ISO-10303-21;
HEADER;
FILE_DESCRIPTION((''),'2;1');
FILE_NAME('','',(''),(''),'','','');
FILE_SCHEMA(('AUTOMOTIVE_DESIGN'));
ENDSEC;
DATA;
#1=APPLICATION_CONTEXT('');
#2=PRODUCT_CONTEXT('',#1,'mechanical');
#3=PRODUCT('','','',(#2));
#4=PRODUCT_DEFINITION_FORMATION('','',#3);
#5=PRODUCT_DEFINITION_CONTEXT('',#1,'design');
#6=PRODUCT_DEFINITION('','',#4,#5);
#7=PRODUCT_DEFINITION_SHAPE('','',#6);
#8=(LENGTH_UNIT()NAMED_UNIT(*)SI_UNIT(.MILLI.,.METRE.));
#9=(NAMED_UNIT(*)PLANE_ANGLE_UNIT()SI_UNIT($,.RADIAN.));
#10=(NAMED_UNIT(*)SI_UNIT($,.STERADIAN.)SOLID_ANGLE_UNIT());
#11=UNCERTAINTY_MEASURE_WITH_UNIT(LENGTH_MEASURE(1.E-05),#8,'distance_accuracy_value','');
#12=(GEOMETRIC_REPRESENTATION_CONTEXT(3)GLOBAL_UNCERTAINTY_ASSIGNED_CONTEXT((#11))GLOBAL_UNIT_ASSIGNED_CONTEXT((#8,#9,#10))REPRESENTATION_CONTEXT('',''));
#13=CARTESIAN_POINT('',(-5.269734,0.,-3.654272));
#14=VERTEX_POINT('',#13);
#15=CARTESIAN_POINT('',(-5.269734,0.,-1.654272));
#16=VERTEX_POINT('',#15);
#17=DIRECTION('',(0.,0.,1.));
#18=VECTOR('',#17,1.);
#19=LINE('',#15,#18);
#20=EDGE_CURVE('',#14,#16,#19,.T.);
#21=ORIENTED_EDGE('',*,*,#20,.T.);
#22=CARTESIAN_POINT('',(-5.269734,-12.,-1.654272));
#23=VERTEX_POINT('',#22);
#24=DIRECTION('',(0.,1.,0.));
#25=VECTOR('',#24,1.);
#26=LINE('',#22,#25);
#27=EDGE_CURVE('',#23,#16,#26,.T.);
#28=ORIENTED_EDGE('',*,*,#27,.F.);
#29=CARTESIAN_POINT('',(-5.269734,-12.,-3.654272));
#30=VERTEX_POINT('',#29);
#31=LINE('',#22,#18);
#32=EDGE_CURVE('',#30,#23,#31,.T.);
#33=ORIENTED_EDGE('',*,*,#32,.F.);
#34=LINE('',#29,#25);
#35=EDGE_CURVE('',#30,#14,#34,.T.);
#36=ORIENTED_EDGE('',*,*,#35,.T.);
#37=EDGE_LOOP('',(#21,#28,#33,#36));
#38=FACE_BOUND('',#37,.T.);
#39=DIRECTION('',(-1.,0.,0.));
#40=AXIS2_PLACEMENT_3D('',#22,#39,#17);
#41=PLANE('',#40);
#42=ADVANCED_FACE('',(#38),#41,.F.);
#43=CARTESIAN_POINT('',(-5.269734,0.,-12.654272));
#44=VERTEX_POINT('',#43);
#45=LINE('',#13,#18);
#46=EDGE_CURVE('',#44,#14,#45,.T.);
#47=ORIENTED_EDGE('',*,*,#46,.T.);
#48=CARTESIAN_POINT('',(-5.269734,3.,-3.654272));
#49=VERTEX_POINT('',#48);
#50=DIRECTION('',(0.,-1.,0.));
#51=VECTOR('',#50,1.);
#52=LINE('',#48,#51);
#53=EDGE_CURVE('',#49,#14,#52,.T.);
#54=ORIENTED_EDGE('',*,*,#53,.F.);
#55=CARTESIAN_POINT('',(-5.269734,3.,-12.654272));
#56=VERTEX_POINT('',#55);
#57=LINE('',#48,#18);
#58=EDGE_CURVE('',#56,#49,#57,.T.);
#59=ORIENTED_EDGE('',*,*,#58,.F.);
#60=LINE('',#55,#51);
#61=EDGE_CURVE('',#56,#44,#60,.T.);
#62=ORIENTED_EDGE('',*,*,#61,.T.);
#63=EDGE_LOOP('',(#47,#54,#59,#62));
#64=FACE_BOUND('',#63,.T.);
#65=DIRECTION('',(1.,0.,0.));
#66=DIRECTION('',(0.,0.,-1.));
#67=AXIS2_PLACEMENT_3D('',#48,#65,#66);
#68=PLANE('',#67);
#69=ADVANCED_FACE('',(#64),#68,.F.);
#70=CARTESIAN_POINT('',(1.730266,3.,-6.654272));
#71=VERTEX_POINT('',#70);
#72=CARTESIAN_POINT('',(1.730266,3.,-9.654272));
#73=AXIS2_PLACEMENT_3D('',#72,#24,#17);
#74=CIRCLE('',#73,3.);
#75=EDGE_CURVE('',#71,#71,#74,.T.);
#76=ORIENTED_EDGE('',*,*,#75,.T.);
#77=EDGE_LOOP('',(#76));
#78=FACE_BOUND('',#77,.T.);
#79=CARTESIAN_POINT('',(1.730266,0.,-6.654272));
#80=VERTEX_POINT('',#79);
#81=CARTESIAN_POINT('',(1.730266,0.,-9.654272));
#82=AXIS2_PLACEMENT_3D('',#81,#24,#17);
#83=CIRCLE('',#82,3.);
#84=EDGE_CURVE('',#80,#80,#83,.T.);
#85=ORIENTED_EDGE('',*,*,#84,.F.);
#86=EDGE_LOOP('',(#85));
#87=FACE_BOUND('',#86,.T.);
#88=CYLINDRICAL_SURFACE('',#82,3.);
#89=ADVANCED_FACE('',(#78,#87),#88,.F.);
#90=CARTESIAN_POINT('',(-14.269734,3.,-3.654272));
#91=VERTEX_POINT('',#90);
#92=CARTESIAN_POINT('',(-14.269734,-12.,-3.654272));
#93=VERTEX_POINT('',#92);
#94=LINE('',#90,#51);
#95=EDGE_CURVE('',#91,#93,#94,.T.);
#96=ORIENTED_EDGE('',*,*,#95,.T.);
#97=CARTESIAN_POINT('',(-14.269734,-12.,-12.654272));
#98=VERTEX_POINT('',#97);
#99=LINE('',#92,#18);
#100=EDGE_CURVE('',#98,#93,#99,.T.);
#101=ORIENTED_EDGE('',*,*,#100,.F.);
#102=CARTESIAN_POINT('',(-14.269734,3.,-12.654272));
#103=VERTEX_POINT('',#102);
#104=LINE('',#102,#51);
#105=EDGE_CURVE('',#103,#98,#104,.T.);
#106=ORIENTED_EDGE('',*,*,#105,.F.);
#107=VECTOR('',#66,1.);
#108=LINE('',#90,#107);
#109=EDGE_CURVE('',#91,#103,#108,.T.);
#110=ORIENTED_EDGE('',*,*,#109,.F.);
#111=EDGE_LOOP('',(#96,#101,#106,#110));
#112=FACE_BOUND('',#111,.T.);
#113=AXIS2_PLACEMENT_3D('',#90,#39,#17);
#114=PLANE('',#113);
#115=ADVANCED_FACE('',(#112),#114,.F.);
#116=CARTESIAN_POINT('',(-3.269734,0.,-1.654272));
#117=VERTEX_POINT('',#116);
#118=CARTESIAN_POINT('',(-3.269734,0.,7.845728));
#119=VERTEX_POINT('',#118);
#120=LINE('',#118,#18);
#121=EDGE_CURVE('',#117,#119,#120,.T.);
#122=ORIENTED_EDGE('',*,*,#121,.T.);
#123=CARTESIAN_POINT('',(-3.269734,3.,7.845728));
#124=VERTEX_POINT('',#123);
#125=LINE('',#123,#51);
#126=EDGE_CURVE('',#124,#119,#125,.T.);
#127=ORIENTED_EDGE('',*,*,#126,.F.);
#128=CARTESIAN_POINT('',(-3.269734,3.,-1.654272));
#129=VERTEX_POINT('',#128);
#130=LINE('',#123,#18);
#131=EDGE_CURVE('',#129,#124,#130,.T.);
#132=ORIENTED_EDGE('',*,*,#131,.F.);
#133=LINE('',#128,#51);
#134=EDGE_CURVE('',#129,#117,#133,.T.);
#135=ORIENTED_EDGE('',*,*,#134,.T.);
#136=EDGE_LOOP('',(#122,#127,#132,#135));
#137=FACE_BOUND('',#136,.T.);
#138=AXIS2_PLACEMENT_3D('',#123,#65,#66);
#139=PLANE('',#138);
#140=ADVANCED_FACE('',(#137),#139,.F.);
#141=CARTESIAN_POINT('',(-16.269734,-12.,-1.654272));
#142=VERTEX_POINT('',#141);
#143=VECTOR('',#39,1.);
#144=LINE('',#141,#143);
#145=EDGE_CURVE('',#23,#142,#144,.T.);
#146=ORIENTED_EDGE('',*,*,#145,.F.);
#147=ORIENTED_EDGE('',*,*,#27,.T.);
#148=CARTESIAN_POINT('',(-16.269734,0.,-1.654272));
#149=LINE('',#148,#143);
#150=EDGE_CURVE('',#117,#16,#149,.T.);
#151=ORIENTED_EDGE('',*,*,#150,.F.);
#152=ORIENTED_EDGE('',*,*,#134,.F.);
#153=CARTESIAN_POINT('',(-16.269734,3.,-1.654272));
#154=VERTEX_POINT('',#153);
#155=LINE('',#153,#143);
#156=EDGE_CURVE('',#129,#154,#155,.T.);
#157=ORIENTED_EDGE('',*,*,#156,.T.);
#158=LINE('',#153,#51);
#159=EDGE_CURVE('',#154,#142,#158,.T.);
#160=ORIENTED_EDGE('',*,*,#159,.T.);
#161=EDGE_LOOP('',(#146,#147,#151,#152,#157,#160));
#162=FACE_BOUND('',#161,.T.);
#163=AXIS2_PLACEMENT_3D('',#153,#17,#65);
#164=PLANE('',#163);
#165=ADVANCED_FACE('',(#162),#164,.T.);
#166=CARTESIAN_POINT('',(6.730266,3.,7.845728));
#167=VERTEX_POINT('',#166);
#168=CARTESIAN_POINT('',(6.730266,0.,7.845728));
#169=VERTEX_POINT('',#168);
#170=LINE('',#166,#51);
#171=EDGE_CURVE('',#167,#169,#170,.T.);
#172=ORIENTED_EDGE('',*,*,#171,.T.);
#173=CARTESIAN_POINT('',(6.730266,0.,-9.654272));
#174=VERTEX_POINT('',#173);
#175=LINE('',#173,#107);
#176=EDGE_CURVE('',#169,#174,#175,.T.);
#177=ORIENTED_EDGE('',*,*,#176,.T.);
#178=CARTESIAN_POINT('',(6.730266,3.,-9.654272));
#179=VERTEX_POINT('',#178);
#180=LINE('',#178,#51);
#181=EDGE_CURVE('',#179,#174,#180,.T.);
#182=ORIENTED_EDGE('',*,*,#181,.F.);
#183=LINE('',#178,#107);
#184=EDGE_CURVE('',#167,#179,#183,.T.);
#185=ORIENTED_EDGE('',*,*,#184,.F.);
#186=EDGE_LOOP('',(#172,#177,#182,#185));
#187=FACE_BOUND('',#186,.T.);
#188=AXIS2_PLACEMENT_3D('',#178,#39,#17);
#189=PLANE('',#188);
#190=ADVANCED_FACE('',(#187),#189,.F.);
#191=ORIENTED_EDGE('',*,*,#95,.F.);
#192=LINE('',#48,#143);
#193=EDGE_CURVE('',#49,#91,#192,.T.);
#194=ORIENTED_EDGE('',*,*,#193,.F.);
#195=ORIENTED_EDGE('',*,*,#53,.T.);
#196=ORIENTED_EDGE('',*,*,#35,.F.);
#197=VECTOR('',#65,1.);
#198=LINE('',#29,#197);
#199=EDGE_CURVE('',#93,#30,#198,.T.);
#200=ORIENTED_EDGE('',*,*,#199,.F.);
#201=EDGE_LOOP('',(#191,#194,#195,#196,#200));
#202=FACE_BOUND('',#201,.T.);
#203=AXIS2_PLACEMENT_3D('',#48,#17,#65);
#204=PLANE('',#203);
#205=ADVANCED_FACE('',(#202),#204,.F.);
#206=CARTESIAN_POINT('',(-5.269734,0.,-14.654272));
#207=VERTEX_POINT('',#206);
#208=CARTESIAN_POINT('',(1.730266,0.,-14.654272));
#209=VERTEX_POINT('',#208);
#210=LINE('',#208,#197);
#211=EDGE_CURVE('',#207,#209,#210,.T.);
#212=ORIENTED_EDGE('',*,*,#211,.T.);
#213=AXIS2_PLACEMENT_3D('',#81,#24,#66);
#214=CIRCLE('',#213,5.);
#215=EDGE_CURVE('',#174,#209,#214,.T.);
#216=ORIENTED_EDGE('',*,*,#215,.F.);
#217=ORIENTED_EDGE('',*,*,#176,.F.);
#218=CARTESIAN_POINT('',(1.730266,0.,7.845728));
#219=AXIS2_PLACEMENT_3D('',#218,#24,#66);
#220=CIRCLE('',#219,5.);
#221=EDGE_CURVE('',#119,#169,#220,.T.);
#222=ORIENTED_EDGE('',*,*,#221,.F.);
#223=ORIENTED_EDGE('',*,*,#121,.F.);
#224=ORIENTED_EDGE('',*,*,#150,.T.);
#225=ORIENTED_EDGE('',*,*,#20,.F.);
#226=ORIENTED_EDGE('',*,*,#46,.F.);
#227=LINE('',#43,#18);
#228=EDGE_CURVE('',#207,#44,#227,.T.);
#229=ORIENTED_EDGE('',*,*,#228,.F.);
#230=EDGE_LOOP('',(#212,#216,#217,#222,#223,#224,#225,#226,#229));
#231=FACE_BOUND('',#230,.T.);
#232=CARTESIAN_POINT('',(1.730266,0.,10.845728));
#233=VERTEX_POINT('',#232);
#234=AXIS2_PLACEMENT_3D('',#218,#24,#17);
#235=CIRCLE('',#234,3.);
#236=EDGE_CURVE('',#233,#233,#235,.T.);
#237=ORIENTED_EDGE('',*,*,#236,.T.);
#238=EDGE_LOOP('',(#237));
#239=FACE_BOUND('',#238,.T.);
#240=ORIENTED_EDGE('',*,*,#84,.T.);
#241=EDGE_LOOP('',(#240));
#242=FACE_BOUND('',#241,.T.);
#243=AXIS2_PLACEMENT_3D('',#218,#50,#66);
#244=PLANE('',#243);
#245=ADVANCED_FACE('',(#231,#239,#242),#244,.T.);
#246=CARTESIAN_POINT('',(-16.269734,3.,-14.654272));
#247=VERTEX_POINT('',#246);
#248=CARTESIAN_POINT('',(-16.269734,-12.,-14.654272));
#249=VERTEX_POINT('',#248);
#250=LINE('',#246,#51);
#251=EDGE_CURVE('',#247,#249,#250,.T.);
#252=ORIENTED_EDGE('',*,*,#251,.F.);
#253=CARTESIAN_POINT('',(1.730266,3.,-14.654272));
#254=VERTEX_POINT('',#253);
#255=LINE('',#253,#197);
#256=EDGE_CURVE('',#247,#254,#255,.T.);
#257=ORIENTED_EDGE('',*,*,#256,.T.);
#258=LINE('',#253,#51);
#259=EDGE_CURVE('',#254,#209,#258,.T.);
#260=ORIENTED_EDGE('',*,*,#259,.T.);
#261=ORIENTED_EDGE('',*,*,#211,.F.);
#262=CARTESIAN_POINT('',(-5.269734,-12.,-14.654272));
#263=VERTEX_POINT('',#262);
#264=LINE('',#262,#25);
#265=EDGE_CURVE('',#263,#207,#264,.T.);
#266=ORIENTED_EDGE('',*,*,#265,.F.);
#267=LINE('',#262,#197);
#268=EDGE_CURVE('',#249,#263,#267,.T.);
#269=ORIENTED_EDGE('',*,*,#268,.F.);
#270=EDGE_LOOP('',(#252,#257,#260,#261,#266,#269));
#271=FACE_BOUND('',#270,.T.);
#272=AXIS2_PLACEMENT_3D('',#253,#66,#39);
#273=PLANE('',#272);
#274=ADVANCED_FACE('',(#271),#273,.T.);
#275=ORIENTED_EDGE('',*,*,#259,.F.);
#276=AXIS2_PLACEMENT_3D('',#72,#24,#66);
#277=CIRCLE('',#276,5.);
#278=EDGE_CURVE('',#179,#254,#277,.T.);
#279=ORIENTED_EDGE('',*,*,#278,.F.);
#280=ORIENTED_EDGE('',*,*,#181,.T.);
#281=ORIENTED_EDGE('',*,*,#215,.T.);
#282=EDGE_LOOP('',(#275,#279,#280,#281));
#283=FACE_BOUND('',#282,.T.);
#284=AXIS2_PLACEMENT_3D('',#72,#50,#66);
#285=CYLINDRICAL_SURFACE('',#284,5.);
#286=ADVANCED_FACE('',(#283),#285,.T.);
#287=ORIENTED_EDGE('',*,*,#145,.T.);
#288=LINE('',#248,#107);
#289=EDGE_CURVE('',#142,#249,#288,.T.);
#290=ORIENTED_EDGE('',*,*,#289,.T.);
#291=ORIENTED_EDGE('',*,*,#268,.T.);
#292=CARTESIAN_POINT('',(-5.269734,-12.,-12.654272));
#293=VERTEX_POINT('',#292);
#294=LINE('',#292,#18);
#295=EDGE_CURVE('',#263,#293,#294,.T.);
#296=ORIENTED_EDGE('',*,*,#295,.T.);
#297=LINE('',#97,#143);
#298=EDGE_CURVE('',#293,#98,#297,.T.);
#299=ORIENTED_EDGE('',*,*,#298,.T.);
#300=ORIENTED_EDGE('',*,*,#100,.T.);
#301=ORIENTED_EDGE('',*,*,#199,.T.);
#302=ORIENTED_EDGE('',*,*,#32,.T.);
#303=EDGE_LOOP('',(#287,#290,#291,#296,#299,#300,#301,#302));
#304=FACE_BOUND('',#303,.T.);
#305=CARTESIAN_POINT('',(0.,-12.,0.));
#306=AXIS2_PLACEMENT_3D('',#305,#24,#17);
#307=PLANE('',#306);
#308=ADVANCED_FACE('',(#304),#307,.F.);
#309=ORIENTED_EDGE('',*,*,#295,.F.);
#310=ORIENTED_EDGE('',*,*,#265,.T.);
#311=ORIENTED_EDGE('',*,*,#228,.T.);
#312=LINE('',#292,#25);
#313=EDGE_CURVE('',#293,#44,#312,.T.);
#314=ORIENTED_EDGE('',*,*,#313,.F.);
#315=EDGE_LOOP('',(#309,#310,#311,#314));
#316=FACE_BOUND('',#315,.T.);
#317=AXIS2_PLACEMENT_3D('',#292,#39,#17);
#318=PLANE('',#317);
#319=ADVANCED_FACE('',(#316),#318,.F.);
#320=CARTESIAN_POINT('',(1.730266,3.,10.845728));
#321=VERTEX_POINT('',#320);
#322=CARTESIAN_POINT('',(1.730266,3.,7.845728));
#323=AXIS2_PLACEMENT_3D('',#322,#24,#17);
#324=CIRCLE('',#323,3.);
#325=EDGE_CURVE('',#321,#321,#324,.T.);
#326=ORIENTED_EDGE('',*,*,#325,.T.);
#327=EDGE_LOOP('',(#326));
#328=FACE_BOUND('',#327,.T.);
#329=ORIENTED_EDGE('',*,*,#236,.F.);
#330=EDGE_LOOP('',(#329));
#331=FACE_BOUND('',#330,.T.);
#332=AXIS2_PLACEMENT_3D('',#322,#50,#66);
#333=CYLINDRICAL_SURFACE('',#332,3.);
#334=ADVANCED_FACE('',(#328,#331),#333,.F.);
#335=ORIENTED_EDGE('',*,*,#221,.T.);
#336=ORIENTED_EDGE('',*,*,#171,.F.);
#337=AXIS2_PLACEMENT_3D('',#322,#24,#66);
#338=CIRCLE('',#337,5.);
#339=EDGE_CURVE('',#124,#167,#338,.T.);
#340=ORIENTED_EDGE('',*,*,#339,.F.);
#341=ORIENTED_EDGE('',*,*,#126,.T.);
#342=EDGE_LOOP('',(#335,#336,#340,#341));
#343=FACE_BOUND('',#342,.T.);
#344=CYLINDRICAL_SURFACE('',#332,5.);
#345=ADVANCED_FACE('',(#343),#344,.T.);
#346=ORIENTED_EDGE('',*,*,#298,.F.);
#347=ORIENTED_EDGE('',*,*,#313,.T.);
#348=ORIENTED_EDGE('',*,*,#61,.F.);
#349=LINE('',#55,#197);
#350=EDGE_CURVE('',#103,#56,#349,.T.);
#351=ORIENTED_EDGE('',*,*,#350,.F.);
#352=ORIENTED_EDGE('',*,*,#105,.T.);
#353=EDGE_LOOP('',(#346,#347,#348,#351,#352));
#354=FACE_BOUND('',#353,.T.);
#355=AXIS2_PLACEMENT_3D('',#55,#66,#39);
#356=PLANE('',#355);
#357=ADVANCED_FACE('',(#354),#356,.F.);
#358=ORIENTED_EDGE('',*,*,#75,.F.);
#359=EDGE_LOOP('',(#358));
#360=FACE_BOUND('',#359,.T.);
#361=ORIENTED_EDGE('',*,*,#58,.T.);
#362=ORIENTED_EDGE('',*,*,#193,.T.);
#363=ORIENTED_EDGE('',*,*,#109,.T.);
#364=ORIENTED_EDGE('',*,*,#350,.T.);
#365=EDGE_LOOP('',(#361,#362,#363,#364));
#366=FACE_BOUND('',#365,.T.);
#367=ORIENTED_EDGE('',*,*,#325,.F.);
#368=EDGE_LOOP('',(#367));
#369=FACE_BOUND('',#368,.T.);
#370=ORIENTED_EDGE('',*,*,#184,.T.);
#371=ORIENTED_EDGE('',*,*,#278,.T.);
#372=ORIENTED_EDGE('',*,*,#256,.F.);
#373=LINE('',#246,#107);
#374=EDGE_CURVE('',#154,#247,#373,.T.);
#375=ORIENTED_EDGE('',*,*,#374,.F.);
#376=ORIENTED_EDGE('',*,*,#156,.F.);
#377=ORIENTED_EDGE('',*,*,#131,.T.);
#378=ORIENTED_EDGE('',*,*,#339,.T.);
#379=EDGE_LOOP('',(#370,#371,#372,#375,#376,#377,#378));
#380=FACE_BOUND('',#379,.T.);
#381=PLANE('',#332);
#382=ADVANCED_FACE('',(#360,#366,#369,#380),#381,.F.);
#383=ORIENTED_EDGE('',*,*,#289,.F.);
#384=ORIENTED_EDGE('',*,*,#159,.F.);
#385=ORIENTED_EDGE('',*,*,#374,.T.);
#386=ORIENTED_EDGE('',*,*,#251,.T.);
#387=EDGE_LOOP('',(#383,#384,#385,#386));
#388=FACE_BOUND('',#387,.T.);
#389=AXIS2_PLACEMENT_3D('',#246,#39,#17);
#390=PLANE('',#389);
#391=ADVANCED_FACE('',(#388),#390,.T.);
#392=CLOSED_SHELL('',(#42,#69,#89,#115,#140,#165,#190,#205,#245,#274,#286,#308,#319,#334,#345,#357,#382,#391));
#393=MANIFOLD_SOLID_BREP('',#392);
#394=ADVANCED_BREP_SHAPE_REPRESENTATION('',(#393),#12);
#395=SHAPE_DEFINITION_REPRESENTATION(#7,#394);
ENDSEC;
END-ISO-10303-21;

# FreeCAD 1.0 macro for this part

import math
import FreeCAD as App
import Part
import Sketcher
from FreeCAD import Vector
Q = App.Units.Quantity


def add_polygon(sketch, points):
    """Adds a closed chain of lines whose ends are joined by coincident constraints."""
    first, n = sketch.GeometryCount, len(points)
    for a, b in zip(points, points[1:] + points[:1]):
        sketch.addGeometry(Part.LineSegment(App.Vector(*a, 0), App.Vector(*b, 0)), False)
    for i in range(n):
        sketch.addConstraint(Sketcher.Constraint("Coincident", first + i, 2, first + (i + 1) % n, 1))

doc = App.newDocument("Part")
body = doc.addObject("PartDesign::Body", "Body")

sketch1 = body.newObject("Sketcher::SketchObject", "Sketch")
sketch1.AttachmentSupport = (doc.getObject("XZ_Plane"), [""])
sketch1.MapMode = "FlatFace"
sketch1.addGeometry([
    Part.LineSegment(Vector(-3.3, -9.7, 0), Vector(-3.3, 7.8, 0)),
    Part.ArcOfCircle(Part.Circle(Vector(1.7, 7.8, 0), Vector(0, 0, 1), 5), math.radians(0), math.radians(180)),
    Part.LineSegment(Vector(6.7, 7.8, 0), Vector(6.7, -9.7, 0)),
    Part.ArcOfCircle(Part.Circle(Vector(1.7, -9.7, 0), Vector(0, 0, 1), 5), math.radians(180), math.radians(360)),
    Part.Circle(Vector(1.7, 7.8, 0), Vector(0, 0, 1), 3),
], False)
sketch1.addConstraint([
    Sketcher.Constraint("Tangent", 0, 2, 1, 2),
    Sketcher.Constraint("Tangent", 1, 1, 2, 1),
    Sketcher.Constraint("Tangent", 2, 2, 3, 2),
    Sketcher.Constraint("Tangent", 3, 1, 0, 1),
    Sketcher.Constraint("Vertical", 0),
    Sketcher.Constraint("Vertical", 2),
    Sketcher.Constraint("Coincident", 4, 3, 1, 3),
    Sketcher.Constraint("Diameter", 4, Q("6 mm")),
    Sketcher.Constraint("Radius", 1, Q("5 mm")),
    Sketcher.Constraint("DistanceY", 0, 1, 0, 2, Q("17.5 mm")),
    Sketcher.Constraint("DistanceX", -1, 1, 1, 3, Q("1.730266 mm")),
    Sketcher.Constraint("DistanceY", -1, 1, 1, 3, Q("7.845728 mm")),
])
pad1 = body.newObject("PartDesign::Pad", "Pad")
pad1.Profile = sketch1
pad1.Length = 3
pad1.Reversed = True

sketch2 = body.newObject("Sketcher::SketchObject", "Sketch001")
sketch2.AttachmentSupport = (doc.getObject("XZ_Plane"), [""])
sketch2.MapMode = "FlatFace"
sketch2.AttachmentOffset = App.Placement(Vector(0, 0, -3), App.Rotation())
sketch2.addGeometry(Part.Circle(Vector(1.7, -9.7, 0), Vector(0, 0, 1), 3), False)
sketch2.addConstraint([
    Sketcher.Constraint("Diameter", 0, Q("6 mm")),
    Sketcher.Constraint("DistanceX", -1, 1, 0, 3, Q("1.730266 mm")),
    Sketcher.Constraint("DistanceY", 0, 3, -1, 1, Q("9.654272 mm")),
])
pocket1 = body.newObject("PartDesign::Pocket", "Pocket")
pocket1.Profile = sketch2
pocket1.Length = 3
pocket1.Reversed = True

sketch3 = body.newObject("Sketcher::SketchObject", "Sketch002")
sketch3.AttachmentSupport = (doc.getObject("XZ_Plane"), [""])
sketch3.MapMode = "FlatFace"
sketch3.addGeometry(Part.LineSegment(Vector(-16, -15, 0), Vector(2, -15, 0)), False)
sketch3.addGeometry(Part.ArcOfCircle(Part.Circle(Vector(2, -10, 0), Vector(0, 0, 1), 5), math.radians(180), math.radians(270)), False)
sketch3.addGeometry(Part.LineSegment(Vector(-3, -10, 0), Vector(-3, -2, 0)), False)
sketch3.addGeometry(Part.LineSegment(Vector(-3, -2, 0), Vector(-16, -2, 0)), False)
sketch3.addGeometry(Part.LineSegment(Vector(-16, -2, 0), Vector(-16, -15, 0)), False)
add_polygon(sketch3, [(-5, -4), (-5, -13), (-14, -13), (-14, -4)])
sketch3.addConstraint([
    Sketcher.Constraint("Tangent", 0, 2, 1, 2),
    Sketcher.Constraint("Tangent", 1, 1, 2, 1),
    Sketcher.Constraint("Coincident", 2, 2, 3, 1),
    Sketcher.Constraint("Coincident", 3, 2, 4, 1),
    Sketcher.Constraint("Coincident", 4, 2, 0, 1),
    Sketcher.Constraint("Horizontal", 0),
    Sketcher.Constraint("Vertical", 2),
    Sketcher.Constraint("Horizontal", 3),
    Sketcher.Constraint("Vertical", 4),
    Sketcher.Constraint("Vertical", 5),
    Sketcher.Constraint("Horizontal", 6),
    Sketcher.Constraint("Vertical", 7),
    Sketcher.Constraint("Horizontal", 8),
    Sketcher.Constraint("Equal", 3, 4),
    Sketcher.Constraint("Equal", 8, 5),
    Sketcher.Constraint("Radius", 1, Q("5 mm")),
    Sketcher.Constraint("DistanceX", 0, 1, 0, 2, Q("18 mm")),
    Sketcher.Constraint("DistanceX", 6, 2, 6, 1, Q("9 mm")),
    Sketcher.Constraint("DistanceX", 5, 2, 1, 1, Q("2 mm")),
    Sketcher.Constraint("DistanceY", 5, 2, 1, 1, Q("3 mm")),
    Sketcher.Constraint("DistanceX", -1, 1, 1, 3, Q("1.730266 mm")),
    Sketcher.Constraint("DistanceY", 1, 3, -1, 1, Q("9.654272 mm")),
])
pad2 = body.newObject("PartDesign::Pad", "Pad001")
pad2.Profile = sketch3
pad2.Length = 3
pad2.Reversed = True

sketch4 = body.newObject("Sketcher::SketchObject", "Sketch003")
sketch4.AttachmentSupport = (doc.getObject("XZ_Plane"), [""])
sketch4.MapMode = "FlatFace"
add_polygon(sketch4, [(-5.3, -14.7), (-5.3, -12.7), (-14.3, -12.7), (-14.3, -3.7), (-5.3, -3.7), (-5.3, -1.7), (-16.3, -1.7), (-16.3, -14.7)])
sketch4.addConstraint([
    Sketcher.Constraint("Vertical", 0),
    Sketcher.Constraint("Horizontal", 1),
    Sketcher.Constraint("Vertical", 2),
    Sketcher.Constraint("Horizontal", 3),
    Sketcher.Constraint("Vertical", 4),
    Sketcher.Constraint("Horizontal", 5),
    Sketcher.Constraint("Vertical", 6),
    Sketcher.Constraint("Horizontal", 7),
    Sketcher.Constraint("Vertical", 0, 2, 3, 2),
    Sketcher.Constraint("Equal", 3, 2),
    Sketcher.Constraint("Equal", 0, 4),
    Sketcher.Constraint("DistanceX", 1, 2, 1, 1, Q("9 mm")),
    Sketcher.Constraint("DistanceX", 5, 2, 5, 1, Q("11 mm")),
    Sketcher.Constraint("DistanceY", 0, 1, 0, 2, Q("2 mm")),
    Sketcher.Constraint("DistanceX", 0, 2, -1, 1, Q("5.269734 mm")),
    Sketcher.Constraint("DistanceY", 0, 2, -1, 1, Q("12.654272 mm")),
])
pad3 = body.newObject("PartDesign::Pad", "Pad002")
pad3.Profile = sketch4
pad3.Length = 12

doc.recompute()
